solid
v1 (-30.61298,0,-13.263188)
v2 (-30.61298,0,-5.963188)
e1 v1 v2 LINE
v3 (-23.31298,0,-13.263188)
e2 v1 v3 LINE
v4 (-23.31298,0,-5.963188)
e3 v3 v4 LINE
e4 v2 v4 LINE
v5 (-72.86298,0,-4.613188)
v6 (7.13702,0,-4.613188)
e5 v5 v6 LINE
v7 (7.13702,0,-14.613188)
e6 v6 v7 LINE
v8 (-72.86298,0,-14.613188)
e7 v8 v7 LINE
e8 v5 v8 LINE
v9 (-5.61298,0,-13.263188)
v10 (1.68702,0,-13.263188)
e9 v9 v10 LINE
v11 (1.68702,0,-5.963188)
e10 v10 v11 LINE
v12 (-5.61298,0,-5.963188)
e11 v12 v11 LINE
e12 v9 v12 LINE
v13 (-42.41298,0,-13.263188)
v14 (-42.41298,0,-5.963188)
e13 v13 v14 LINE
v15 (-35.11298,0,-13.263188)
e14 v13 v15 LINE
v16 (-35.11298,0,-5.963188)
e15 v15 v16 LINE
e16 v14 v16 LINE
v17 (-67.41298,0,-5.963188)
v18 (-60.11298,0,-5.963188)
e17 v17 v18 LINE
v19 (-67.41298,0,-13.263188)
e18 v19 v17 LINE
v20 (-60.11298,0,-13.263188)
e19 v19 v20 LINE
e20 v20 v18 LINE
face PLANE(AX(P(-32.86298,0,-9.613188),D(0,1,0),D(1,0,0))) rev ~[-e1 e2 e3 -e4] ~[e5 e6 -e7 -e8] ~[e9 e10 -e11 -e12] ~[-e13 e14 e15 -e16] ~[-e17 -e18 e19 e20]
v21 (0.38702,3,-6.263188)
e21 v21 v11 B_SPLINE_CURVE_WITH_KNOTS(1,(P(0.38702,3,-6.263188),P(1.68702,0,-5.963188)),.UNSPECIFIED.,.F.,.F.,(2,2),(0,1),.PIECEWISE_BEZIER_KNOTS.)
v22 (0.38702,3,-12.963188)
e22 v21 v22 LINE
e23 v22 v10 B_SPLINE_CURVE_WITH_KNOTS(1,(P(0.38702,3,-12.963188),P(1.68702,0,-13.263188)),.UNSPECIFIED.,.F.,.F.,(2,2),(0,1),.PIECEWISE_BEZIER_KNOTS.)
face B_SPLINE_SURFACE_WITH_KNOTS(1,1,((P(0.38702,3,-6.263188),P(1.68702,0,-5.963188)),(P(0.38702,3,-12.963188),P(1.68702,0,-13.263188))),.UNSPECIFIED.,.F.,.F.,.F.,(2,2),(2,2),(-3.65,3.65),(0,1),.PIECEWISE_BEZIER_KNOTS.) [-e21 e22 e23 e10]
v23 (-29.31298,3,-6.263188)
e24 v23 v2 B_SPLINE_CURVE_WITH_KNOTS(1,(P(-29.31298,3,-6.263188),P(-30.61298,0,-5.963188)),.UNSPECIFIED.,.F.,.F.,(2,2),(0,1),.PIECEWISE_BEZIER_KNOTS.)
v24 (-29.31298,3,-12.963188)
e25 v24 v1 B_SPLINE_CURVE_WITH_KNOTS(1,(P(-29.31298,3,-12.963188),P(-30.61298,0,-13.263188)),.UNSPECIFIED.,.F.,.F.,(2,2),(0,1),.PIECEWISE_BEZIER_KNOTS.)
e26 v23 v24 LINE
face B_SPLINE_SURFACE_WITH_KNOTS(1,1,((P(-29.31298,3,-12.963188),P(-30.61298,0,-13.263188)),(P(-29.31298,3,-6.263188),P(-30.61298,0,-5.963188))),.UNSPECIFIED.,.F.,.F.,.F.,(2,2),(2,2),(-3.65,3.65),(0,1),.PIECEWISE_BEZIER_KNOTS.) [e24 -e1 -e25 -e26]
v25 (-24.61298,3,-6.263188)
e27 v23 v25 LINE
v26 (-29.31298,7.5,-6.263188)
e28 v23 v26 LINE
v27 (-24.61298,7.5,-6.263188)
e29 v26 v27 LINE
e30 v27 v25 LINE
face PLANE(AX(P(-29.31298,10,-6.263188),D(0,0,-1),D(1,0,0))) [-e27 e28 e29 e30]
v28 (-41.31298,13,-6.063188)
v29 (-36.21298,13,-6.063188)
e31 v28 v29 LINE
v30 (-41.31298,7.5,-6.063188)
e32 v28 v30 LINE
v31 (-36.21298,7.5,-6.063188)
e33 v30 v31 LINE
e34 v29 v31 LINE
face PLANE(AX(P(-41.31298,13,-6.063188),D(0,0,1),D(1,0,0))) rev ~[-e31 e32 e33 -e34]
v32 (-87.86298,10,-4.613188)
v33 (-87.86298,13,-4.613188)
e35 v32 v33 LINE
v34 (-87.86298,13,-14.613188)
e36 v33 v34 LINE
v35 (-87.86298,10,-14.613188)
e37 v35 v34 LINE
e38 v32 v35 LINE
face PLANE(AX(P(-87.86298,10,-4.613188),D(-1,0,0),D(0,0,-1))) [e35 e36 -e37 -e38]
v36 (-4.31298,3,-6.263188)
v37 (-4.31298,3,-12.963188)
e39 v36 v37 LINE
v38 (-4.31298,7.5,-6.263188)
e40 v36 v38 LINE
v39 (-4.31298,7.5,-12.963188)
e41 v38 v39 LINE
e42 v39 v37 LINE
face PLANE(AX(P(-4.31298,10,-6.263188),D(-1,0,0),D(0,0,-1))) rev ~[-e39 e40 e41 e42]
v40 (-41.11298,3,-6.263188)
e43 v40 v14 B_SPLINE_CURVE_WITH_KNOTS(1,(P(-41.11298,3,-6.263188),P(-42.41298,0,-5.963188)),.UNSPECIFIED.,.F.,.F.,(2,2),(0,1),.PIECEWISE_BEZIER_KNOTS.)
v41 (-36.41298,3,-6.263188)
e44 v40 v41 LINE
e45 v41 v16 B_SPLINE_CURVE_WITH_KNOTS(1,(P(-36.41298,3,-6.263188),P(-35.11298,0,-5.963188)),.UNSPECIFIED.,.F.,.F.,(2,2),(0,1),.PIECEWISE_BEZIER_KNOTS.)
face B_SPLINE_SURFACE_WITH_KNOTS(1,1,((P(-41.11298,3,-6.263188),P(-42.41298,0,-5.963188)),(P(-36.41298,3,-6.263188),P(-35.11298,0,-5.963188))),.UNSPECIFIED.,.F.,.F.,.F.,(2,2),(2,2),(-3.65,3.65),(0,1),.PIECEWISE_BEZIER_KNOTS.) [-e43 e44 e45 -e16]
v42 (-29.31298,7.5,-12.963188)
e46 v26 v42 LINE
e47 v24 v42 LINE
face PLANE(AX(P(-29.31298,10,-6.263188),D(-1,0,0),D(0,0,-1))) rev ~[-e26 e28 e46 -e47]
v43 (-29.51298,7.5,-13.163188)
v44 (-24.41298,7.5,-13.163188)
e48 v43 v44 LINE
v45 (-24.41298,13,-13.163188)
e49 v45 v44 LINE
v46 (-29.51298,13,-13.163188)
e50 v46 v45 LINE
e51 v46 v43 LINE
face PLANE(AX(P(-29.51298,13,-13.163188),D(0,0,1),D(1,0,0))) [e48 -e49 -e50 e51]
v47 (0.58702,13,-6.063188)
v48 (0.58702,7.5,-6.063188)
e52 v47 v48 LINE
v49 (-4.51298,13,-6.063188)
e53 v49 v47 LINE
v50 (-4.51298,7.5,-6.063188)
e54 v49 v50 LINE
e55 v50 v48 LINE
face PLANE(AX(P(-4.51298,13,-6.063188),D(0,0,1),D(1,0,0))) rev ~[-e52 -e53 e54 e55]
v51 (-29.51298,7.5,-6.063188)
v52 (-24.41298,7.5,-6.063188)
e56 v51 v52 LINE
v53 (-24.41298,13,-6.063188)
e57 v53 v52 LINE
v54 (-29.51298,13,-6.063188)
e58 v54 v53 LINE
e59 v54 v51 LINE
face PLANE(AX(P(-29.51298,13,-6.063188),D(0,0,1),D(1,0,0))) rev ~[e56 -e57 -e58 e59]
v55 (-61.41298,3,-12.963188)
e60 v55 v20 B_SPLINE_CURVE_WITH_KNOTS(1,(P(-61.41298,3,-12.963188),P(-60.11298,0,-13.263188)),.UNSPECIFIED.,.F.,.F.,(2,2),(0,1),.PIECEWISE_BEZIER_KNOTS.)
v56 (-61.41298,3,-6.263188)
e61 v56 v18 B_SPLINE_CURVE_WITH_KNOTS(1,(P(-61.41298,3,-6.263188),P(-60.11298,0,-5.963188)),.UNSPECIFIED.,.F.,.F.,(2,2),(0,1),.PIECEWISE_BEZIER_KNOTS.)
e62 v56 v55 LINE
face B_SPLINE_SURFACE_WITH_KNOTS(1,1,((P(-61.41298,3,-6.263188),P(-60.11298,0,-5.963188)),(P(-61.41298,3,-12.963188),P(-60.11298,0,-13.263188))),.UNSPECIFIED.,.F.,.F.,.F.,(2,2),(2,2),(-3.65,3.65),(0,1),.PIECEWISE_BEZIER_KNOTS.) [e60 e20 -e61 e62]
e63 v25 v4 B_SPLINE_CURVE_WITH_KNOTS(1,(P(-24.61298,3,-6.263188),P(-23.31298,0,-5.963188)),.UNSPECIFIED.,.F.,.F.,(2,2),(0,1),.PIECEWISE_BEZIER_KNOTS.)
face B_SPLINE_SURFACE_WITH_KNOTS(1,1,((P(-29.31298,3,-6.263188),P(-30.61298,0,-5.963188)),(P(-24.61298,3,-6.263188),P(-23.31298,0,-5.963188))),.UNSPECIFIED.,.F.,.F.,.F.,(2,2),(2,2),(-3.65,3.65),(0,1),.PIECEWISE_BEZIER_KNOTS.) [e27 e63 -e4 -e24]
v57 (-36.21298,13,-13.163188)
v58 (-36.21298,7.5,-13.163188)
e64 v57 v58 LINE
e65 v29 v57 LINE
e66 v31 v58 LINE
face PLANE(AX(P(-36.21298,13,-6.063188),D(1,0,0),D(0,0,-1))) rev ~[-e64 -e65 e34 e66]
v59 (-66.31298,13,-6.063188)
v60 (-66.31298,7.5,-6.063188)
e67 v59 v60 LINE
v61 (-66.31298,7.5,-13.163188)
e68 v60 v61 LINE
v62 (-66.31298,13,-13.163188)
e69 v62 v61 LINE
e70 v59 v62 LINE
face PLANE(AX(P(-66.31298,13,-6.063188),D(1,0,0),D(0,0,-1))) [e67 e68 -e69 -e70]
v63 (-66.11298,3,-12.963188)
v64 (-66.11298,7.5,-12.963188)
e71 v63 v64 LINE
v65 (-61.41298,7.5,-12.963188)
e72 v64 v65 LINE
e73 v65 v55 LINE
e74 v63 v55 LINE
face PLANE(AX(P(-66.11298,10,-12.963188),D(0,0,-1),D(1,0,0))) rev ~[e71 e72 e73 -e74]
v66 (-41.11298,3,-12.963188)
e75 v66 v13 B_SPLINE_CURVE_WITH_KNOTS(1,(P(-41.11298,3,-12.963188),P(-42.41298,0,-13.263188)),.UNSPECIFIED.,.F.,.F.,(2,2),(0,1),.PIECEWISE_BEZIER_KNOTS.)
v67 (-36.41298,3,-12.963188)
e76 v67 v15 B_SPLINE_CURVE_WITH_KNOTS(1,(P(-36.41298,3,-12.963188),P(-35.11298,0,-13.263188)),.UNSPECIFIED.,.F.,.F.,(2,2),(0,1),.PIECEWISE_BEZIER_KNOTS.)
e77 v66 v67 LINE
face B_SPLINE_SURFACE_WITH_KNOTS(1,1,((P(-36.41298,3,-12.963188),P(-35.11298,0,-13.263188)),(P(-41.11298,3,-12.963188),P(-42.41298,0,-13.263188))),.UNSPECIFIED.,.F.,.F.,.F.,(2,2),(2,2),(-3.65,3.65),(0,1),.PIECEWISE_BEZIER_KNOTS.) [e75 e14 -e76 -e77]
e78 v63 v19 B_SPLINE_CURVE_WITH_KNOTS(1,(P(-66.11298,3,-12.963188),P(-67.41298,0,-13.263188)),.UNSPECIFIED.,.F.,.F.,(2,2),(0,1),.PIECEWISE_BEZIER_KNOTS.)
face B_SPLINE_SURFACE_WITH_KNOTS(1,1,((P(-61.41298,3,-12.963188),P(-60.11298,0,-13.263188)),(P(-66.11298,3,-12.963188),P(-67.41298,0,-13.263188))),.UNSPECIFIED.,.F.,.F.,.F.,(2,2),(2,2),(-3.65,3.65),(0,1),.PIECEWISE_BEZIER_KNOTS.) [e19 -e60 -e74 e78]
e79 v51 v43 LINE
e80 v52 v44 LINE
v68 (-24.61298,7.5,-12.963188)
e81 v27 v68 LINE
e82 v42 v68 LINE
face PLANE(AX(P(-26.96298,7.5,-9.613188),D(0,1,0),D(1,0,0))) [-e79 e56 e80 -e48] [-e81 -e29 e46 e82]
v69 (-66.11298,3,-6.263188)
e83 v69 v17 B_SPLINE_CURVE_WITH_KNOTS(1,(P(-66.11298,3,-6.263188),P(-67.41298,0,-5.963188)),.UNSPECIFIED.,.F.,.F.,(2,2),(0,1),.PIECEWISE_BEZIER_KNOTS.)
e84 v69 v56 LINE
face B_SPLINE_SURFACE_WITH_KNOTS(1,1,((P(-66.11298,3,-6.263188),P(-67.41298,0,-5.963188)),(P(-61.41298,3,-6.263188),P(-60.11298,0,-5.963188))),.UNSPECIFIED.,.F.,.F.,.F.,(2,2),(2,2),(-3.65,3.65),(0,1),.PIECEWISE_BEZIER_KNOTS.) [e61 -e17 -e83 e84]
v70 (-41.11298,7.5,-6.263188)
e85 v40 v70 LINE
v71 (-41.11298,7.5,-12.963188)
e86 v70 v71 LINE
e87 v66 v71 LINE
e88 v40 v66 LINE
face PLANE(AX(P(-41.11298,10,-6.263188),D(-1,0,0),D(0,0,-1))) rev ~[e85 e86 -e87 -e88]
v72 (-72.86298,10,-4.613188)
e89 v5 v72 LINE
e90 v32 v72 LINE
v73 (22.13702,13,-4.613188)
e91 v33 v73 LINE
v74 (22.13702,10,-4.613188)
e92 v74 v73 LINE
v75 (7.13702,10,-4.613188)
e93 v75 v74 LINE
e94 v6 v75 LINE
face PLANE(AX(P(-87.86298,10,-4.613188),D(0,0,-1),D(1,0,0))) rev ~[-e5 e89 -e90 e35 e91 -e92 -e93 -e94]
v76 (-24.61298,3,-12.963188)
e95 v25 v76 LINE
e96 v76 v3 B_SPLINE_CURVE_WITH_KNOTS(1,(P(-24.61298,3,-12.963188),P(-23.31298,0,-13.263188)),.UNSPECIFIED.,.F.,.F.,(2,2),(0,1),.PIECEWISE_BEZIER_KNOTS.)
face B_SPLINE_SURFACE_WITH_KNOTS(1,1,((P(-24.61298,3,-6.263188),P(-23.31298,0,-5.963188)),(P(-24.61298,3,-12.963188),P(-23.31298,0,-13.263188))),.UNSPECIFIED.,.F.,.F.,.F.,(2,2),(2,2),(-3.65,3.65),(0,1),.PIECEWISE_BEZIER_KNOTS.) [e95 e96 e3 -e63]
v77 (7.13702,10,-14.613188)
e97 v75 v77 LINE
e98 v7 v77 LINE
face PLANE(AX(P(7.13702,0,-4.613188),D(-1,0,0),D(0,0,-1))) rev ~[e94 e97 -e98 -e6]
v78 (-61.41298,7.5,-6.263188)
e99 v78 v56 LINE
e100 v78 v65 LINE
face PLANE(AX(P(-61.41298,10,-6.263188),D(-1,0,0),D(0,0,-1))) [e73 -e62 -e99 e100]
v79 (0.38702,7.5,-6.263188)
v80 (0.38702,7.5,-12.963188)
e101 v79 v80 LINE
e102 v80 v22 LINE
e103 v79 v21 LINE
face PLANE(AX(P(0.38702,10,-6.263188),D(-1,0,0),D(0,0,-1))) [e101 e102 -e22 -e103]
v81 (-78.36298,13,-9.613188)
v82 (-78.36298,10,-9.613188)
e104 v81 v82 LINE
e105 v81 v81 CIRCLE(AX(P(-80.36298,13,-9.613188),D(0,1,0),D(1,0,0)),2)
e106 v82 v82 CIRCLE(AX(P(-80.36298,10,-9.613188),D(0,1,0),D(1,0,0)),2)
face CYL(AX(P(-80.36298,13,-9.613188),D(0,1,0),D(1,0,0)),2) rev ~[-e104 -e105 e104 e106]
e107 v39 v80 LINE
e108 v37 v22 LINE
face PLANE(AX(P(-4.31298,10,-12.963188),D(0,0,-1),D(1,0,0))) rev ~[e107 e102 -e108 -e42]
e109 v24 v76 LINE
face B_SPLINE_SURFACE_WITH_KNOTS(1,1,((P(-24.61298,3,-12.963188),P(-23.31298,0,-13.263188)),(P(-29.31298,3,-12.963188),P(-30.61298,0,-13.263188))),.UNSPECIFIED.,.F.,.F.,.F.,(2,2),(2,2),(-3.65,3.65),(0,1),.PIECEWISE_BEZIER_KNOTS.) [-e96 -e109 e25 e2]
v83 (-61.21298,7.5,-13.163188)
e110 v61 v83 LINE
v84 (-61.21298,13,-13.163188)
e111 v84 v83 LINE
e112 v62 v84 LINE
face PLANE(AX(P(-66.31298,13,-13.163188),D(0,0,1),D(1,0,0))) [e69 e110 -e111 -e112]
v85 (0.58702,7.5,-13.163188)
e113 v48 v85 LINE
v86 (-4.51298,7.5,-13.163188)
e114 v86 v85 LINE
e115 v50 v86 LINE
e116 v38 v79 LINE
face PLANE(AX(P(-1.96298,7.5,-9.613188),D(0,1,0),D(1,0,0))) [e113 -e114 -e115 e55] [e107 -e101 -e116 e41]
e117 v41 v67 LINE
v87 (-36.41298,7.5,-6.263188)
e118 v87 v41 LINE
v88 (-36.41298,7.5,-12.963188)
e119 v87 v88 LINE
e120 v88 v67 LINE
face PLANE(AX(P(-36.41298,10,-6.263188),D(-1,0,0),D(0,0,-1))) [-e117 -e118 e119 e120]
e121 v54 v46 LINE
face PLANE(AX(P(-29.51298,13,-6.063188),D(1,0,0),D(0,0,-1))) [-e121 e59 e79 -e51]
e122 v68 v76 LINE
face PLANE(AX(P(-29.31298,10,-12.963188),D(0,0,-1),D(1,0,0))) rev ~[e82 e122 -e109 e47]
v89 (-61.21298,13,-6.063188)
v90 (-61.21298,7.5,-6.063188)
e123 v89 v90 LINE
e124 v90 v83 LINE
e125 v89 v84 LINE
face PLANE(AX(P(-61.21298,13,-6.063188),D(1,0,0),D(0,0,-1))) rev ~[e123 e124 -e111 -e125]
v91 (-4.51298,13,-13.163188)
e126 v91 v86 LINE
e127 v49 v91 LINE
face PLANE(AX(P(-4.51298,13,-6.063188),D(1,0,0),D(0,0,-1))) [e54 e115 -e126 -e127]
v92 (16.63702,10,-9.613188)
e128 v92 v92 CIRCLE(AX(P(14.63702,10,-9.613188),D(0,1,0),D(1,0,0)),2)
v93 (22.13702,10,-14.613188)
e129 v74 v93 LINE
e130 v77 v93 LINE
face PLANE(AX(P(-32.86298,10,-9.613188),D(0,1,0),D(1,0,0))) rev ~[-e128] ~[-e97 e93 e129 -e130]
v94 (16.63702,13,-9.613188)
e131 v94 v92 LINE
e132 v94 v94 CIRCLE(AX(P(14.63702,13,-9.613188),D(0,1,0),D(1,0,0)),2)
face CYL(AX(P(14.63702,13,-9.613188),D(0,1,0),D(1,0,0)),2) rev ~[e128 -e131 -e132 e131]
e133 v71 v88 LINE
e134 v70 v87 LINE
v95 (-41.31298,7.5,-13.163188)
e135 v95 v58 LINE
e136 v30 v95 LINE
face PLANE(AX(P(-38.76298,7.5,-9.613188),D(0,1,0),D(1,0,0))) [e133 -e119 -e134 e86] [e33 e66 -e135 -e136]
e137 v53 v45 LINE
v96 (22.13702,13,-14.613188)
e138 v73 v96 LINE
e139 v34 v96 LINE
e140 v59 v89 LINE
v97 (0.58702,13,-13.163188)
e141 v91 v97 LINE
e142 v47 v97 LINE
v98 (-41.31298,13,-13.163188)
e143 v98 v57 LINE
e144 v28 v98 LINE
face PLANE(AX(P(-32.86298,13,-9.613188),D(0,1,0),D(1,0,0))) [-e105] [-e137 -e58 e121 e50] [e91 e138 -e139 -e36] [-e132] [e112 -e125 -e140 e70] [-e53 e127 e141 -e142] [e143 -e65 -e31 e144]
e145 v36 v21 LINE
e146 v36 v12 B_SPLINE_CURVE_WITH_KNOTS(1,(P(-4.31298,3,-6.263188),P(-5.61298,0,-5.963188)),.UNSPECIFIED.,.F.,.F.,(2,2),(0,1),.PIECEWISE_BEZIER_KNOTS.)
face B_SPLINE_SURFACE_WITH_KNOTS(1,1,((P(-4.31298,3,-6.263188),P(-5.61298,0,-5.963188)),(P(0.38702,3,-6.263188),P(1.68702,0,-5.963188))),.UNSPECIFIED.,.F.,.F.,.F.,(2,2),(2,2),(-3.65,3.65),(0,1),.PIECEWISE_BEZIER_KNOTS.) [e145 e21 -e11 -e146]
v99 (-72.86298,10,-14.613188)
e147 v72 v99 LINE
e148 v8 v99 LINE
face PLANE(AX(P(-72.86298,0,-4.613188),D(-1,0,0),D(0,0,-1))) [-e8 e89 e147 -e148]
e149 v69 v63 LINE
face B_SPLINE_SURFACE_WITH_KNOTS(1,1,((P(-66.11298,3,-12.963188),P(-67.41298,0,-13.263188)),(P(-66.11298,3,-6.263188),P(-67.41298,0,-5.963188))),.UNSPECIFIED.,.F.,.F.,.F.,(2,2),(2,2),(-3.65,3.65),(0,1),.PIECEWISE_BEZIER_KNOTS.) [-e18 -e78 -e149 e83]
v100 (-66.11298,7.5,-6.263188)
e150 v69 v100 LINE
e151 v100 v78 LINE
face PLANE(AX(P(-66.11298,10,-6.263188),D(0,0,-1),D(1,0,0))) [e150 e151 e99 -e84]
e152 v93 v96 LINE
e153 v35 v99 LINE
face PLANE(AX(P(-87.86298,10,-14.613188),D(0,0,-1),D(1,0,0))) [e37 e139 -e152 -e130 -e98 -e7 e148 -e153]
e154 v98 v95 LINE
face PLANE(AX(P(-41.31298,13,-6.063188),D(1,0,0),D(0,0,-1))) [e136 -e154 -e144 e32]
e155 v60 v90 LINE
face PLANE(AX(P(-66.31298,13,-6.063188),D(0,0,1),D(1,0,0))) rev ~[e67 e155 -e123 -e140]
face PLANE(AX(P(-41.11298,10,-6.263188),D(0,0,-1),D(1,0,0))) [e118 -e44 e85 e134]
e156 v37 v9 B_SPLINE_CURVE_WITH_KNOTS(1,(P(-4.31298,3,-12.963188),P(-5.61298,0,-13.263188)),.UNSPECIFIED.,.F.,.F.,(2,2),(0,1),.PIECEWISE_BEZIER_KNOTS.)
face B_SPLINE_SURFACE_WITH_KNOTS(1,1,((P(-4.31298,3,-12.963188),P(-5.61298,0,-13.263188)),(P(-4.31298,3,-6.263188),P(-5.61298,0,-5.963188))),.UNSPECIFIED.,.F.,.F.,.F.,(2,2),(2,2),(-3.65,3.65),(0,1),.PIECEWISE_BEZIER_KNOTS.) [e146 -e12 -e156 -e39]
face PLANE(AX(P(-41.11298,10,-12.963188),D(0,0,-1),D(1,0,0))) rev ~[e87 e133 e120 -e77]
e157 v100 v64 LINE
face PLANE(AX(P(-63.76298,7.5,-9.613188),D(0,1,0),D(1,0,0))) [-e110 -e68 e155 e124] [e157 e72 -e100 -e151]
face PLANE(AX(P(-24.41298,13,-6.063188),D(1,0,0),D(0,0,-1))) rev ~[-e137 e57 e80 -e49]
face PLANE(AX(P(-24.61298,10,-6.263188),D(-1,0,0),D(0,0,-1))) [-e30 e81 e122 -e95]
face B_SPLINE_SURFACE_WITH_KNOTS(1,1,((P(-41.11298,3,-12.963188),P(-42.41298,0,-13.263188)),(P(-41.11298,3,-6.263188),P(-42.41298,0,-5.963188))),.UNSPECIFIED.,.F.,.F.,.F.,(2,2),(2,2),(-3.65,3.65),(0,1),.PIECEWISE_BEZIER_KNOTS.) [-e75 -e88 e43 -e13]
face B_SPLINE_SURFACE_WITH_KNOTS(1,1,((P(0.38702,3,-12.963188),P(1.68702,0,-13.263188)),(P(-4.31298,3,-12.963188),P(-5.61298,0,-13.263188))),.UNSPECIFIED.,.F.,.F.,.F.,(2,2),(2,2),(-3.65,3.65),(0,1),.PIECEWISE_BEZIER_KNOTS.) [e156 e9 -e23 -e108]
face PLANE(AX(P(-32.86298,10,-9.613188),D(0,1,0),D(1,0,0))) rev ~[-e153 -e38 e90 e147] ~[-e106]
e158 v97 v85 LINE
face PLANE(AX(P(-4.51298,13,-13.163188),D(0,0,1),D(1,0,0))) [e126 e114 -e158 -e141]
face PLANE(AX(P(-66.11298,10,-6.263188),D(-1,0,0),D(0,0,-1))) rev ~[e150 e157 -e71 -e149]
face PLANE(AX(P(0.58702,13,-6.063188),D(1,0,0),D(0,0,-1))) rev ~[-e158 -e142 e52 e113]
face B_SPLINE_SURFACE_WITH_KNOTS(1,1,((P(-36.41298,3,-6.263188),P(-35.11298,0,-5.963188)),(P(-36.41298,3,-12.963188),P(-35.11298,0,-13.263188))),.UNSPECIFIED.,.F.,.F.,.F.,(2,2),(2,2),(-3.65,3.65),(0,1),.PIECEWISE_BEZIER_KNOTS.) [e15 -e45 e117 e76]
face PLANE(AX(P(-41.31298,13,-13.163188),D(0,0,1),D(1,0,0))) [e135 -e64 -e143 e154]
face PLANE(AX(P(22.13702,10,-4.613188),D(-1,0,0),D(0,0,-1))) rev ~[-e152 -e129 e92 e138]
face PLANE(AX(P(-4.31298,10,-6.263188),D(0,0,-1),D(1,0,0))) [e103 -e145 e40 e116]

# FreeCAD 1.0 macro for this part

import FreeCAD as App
import Part
import Sketcher

V = App.Vector
Q = App.Units.Quantity

doc = App.newDocument("Part")
body = doc.addObject("PartDesign::Body", "Body")

# Sketch on XZ plane
sketch1 = doc.addObject("Sketcher::SketchObject", "Sketch")
body.addObject(sketch1)
sketch1.AttachmentSupport = (doc.XZ_Plane, [""])
sketch1.MapMode = "FlatFace"
sketch1.addGeometry(Part.LineSegment(V(-73, -15, 0), V(-73, -5, 0)), False)
sketch1.addGeometry(Part.LineSegment(V(-73, -5, 0), V(7, -5, 0)), False)
sketch1.addGeometry(Part.LineSegment(V(7, -5, 0), V(7, -15, 0)), False)
sketch1.addGeometry(Part.LineSegment(V(7, -15, 0), V(-73, -15, 0)), False)
sketch1.addConstraint(Sketcher.Constraint("Coincident", 0, 2, 1, 1))
sketch1.addConstraint(Sketcher.Constraint("Coincident", 1, 2, 2, 1))
sketch1.addConstraint(Sketcher.Constraint("Coincident", 2, 2, 3, 1))
sketch1.addConstraint(Sketcher.Constraint("Coincident", 3, 2, 0, 1))
sketch1.addConstraint(Sketcher.Constraint("Vertical", 0))
sketch1.addConstraint(Sketcher.Constraint("Horizontal", 1))
sketch1.addConstraint(Sketcher.Constraint("Vertical", 2))
sketch1.addConstraint(Sketcher.Constraint("Horizontal", 3))
sketch1.addConstraint(Sketcher.Constraint("DistanceX", 1, 1, 1, 2, Q("80 mm")))
sketch1.addConstraint(Sketcher.Constraint("DistanceY", 0, 1, 0, 2, Q("10 mm")))
sketch1.addConstraint(Sketcher.Constraint("DistanceX", 0, 2, -1, 1, Q("72.86298 mm")))
sketch1.addConstraint(Sketcher.Constraint("DistanceY", 0, 2, -1, 1, Q("4.613188 mm")))
pad1 = doc.addObject("PartDesign::Pad", "Pad")
body.addObject(pad1)
pad1.Profile = sketch1
pad1.Length = 10
pad1.Reversed = True

# Sketch on XZ plane
sketch2 = doc.addObject("Sketcher::SketchObject", "Sketch001")
body.addObject(sketch2)
sketch2.AttachmentSupport = (doc.XZ_Plane, [""])
sketch2.MapMode = "FlatFace"
sketch2.AttachmentOffset = App.Placement(V(0, 0, -10), App.Rotation())
sketch2.addGeometry(Part.LineSegment(V(-29.3, -13, 0), V(-29.3, -6.3, 0)), False)
sketch2.addGeometry(Part.LineSegment(V(-29.3, -6.3, 0), V(-24.6, -6.3, 0)), False)
sketch2.addGeometry(Part.LineSegment(V(-24.6, -6.3, 0), V(-24.6, -13, 0)), False)
sketch2.addGeometry(Part.LineSegment(V(-24.6, -13, 0), V(-29.3, -13, 0)), False)
sketch2.addGeometry(Part.LineSegment(V(-41.1, -13, 0), V(-41.1, -6.3, 0)), False)
sketch2.addGeometry(Part.LineSegment(V(-41.1, -6.3, 0), V(-36.4, -6.3, 0)), False)
sketch2.addGeometry(Part.LineSegment(V(-36.4, -6.3, 0), V(-36.4, -13, 0)), False)
sketch2.addGeometry(Part.LineSegment(V(-36.4, -13, 0), V(-41.1, -13, 0)), False)
sketch2.addGeometry(Part.LineSegment(V(-4.3, -13, 0), V(-4.3, -6.3, 0)), False)
sketch2.addGeometry(Part.LineSegment(V(-4.3, -6.3, 0), V(0.4, -6.3, 0)), False)
sketch2.addGeometry(Part.LineSegment(V(0.4, -6.3, 0), V(0.4, -13, 0)), False)
sketch2.addGeometry(Part.LineSegment(V(0.4, -13, 0), V(-4.3, -13, 0)), False)
sketch2.addGeometry(Part.LineSegment(V(-66.1, -13, 0), V(-66.1, -6.3, 0)), False)
sketch2.addGeometry(Part.LineSegment(V(-66.1, -6.3, 0), V(-61.4, -6.3, 0)), False)
sketch2.addGeometry(Part.LineSegment(V(-61.4, -6.3, 0), V(-61.4, -13, 0)), False)
sketch2.addGeometry(Part.LineSegment(V(-61.4, -13, 0), V(-66.1, -13, 0)), False)
sketch2.addConstraint(Sketcher.Constraint("Coincident", 0, 2, 1, 1))
sketch2.addConstraint(Sketcher.Constraint("Coincident", 1, 2, 2, 1))
sketch2.addConstraint(Sketcher.Constraint("Coincident", 2, 2, 3, 1))
sketch2.addConstraint(Sketcher.Constraint("Coincident", 3, 2, 0, 1))
sketch2.addConstraint(Sketcher.Constraint("Coincident", 4, 2, 5, 1))
sketch2.addConstraint(Sketcher.Constraint("Coincident", 5, 2, 6, 1))
sketch2.addConstraint(Sketcher.Constraint("Coincident", 6, 2, 7, 1))
sketch2.addConstraint(Sketcher.Constraint("Coincident", 7, 2, 4, 1))
sketch2.addConstraint(Sketcher.Constraint("Coincident", 8, 2, 9, 1))
sketch2.addConstraint(Sketcher.Constraint("Coincident", 9, 2, 10, 1))
sketch2.addConstraint(Sketcher.Constraint("Coincident", 10, 2, 11, 1))
sketch2.addConstraint(Sketcher.Constraint("Coincident", 11, 2, 8, 1))
sketch2.addConstraint(Sketcher.Constraint("Coincident", 12, 2, 13, 1))
sketch2.addConstraint(Sketcher.Constraint("Coincident", 13, 2, 14, 1))
sketch2.addConstraint(Sketcher.Constraint("Coincident", 14, 2, 15, 1))
sketch2.addConstraint(Sketcher.Constraint("Coincident", 15, 2, 12, 1))
sketch2.addConstraint(Sketcher.Constraint("Vertical", 0))
sketch2.addConstraint(Sketcher.Constraint("Horizontal", 1))
sketch2.addConstraint(Sketcher.Constraint("Vertical", 2))
sketch2.addConstraint(Sketcher.Constraint("Horizontal", 3))
sketch2.addConstraint(Sketcher.Constraint("Vertical", 4))
sketch2.addConstraint(Sketcher.Constraint("Horizontal", 5))
sketch2.addConstraint(Sketcher.Constraint("Vertical", 6))
sketch2.addConstraint(Sketcher.Constraint("Horizontal", 7))
sketch2.addConstraint(Sketcher.Constraint("Vertical", 8))
sketch2.addConstraint(Sketcher.Constraint("Horizontal", 9))
sketch2.addConstraint(Sketcher.Constraint("Vertical", 10))
sketch2.addConstraint(Sketcher.Constraint("Horizontal", 11))
sketch2.addConstraint(Sketcher.Constraint("Vertical", 12))
sketch2.addConstraint(Sketcher.Constraint("Horizontal", 13))
sketch2.addConstraint(Sketcher.Constraint("Vertical", 14))
sketch2.addConstraint(Sketcher.Constraint("Horizontal", 15))
sketch2.addConstraint(Sketcher.Constraint("Horizontal", 1, 2, 4, 2))
sketch2.addConstraint(Sketcher.Constraint("Horizontal", 3, 2, 6, 2))
sketch2.addConstraint(Sketcher.Constraint("Horizontal", 5, 2, 8, 2))
sketch2.addConstraint(Sketcher.Constraint("Horizontal", 7, 2, 10, 2))
sketch2.addConstraint(Sketcher.Constraint("Horizontal", 9, 2, 12, 2))
sketch2.addConstraint(Sketcher.Constraint("Horizontal", 11, 2, 14, 2))
sketch2.addConstraint(Sketcher.Constraint("Equal", 3, 5))
sketch2.addConstraint(Sketcher.Constraint("Equal", 7, 9))
sketch2.addConstraint(Sketcher.Constraint("Equal", 11, 13))
sketch2.addConstraint(Sketcher.Constraint("DistanceX", 1, 1, 1, 2, Q("4.7 mm")))
sketch2.addConstraint(Sketcher.Constraint("DistanceY", 0, 1, 0, 2, Q("6.7 mm")))
sketch2.addConstraint(Sketcher.Constraint("DistanceX", 0, 2, 8, 2, Q("25 mm")))
sketch2.addConstraint(Sketcher.Constraint("DistanceX", 12, 2, 4, 2, Q("25 mm")))
sketch2.addConstraint(Sketcher.Constraint("DistanceX", 4, 2, 0, 2, Q("11.8 mm")))
sketch2.addConstraint(Sketcher.Constraint("DistanceX", 0, 2, -1, 1, Q("29.31298 mm")))
sketch2.addConstraint(Sketcher.Constraint("DistanceY", 0, 2, -1, 1, Q("6.263188 mm")))
pocket1 = doc.addObject("PartDesign::Pocket", "Pocket")
body.addObject(pocket1)
pocket1.Profile = sketch2
pocket1.Length = 7
pocket1.Reversed = True

# Sketch on XZ plane
sketch3 = doc.addObject("Sketcher::SketchObject", "Sketch002")
body.addObject(sketch3)
sketch3.AttachmentSupport = (doc.XZ_Plane, [""])
sketch3.MapMode = "FlatFace"
sketch3.AttachmentOffset = App.Placement(V(0, 0, -3), App.Rotation())
sketch3.addGeometry(Part.LineSegment(V(-41.1, -13, 0), V(-41.1, -6.3, 0)), False)
sketch3.addGeometry(Part.LineSegment(V(-41.1, -6.3, 0), V(-36.4, -6.3, 0)), False)
sketch3.addGeometry(Part.LineSegment(V(-36.4, -6.3, 0), V(-36.4, -13, 0)), False)
sketch3.addGeometry(Part.LineSegment(V(-36.4, -13, 0), V(-41.1, -13, 0)), False)
sketch3.addConstraint(Sketcher.Constraint("Coincident", 0, 2, 1, 1))
sketch3.addConstraint(Sketcher.Constraint("Coincident", 1, 2, 2, 1))
sketch3.addConstraint(Sketcher.Constraint("Coincident", 2, 2, 3, 1))
sketch3.addConstraint(Sketcher.Constraint("Coincident", 3, 2, 0, 1))
sketch3.addConstraint(Sketcher.Constraint("Vertical", 0))
sketch3.addConstraint(Sketcher.Constraint("Horizontal", 1))
sketch3.addConstraint(Sketcher.Constraint("Vertical", 2))
sketch3.addConstraint(Sketcher.Constraint("Horizontal", 3))
sketch3.addConstraint(Sketcher.Constraint("DistanceX", 1, 1, 1, 2, Q("4.7 mm")))
sketch3.addConstraint(Sketcher.Constraint("DistanceY", 0, 1, 0, 2, Q("6.7 mm")))
sketch3.addConstraint(Sketcher.Constraint("DistanceX", 0, 2, -1, 1, Q("41.11298 mm")))
sketch3.addConstraint(Sketcher.Constraint("DistanceY", 0, 2, -1, 1, Q("6.263188 mm")))

# Sketch on XZ plane
sketch4 = doc.addObject("Sketcher::SketchObject", "Sketch003")
body.addObject(sketch4)
sketch4.AttachmentSupport = (doc.XZ_Plane, [""])
sketch4.MapMode = "FlatFace"
sketch4.addGeometry(Part.LineSegment(V(-42, -6, 0), V(-42, -13, 0)), False)
sketch4.addGeometry(Part.LineSegment(V(-42, -13, 0), V(-35, -13, 0)), False)
sketch4.addGeometry(Part.LineSegment(V(-35, -13, 0), V(-35, -6, 0)), False)
sketch4.addGeometry(Part.LineSegment(V(-35, -6, 0), V(-42, -6, 0)), False)
sketch4.addConstraint(Sketcher.Constraint("Coincident", 0, 2, 1, 1))
sketch4.addConstraint(Sketcher.Constraint("Coincident", 1, 2, 2, 1))
sketch4.addConstraint(Sketcher.Constraint("Coincident", 2, 2, 3, 1))
sketch4.addConstraint(Sketcher.Constraint("Coincident", 3, 2, 0, 1))
sketch4.addConstraint(Sketcher.Constraint("Vertical", 0))
sketch4.addConstraint(Sketcher.Constraint("Horizontal", 1))
sketch4.addConstraint(Sketcher.Constraint("Vertical", 2))
sketch4.addConstraint(Sketcher.Constraint("Horizontal", 3))
sketch4.addConstraint(Sketcher.Constraint("Equal", 3, 0))
sketch4.addConstraint(Sketcher.Constraint("DistanceX", 1, 1, 1, 2, Q("7.3 mm")))
sketch4.addConstraint(Sketcher.Constraint("DistanceX", 0, 2, -1, 1, Q("42.41298 mm")))
sketch4.addConstraint(Sketcher.Constraint("DistanceY", 0, 2, -1, 1, Q("13.263188 mm")))

subtractiveloft = doc.addObject("PartDesign::SubtractiveLoft", "SubtractiveLoft")
body.addObject(subtractiveloft)
subtractiveloft.Profile = sketch3
subtractiveloft.Sections = [sketch4]

# Sketch on XZ plane
sketch5 = doc.addObject("Sketcher::SketchObject", "Sketch004")
body.addObject(sketch5)
sketch5.AttachmentSupport = (doc.XZ_Plane, [""])
sketch5.MapMode = "FlatFace"
sketch5.AttachmentOffset = App.Placement(V(0, 0, -3), App.Rotation())
sketch5.addGeometry(Part.LineSegment(V(-66.1, -13, 0), V(-66.1, -6.3, 0)), False)
sketch5.addGeometry(Part.LineSegment(V(-66.1, -6.3, 0), V(-61.4, -6.3, 0)), False)
sketch5.addGeometry(Part.LineSegment(V(-61.4, -6.3, 0), V(-61.4, -13, 0)), False)
sketch5.addGeometry(Part.LineSegment(V(-61.4, -13, 0), V(-66.1, -13, 0)), False)
sketch5.addConstraint(Sketcher.Constraint("Coincident", 0, 2, 1, 1))
sketch5.addConstraint(Sketcher.Constraint("Coincident", 1, 2, 2, 1))
sketch5.addConstraint(Sketcher.Constraint("Coincident", 2, 2, 3, 1))
sketch5.addConstraint(Sketcher.Constraint("Coincident", 3, 2, 0, 1))
sketch5.addConstraint(Sketcher.Constraint("Vertical", 0))
sketch5.addConstraint(Sketcher.Constraint("Horizontal", 1))
sketch5.addConstraint(Sketcher.Constraint("Vertical", 2))
sketch5.addConstraint(Sketcher.Constraint("Horizontal", 3))
sketch5.addConstraint(Sketcher.Constraint("DistanceX", 1, 1, 1, 2, Q("4.7 mm")))
sketch5.addConstraint(Sketcher.Constraint("DistanceY", 0, 1, 0, 2, Q("6.7 mm")))
sketch5.addConstraint(Sketcher.Constraint("DistanceX", 0, 2, -1, 1, Q("66.11298 mm")))
sketch5.addConstraint(Sketcher.Constraint("DistanceY", 0, 2, -1, 1, Q("6.263188 mm")))

# Sketch on XZ plane
sketch6 = doc.addObject("Sketcher::SketchObject", "Sketch005")
body.addObject(sketch6)
sketch6.AttachmentSupport = (doc.XZ_Plane, [""])
sketch6.MapMode = "FlatFace"
sketch6.addGeometry(Part.LineSegment(V(-67, -6, 0), V(-67, -13, 0)), False)
sketch6.addGeometry(Part.LineSegment(V(-67, -13, 0), V(-60, -13, 0)), False)
sketch6.addGeometry(Part.LineSegment(V(-60, -13, 0), V(-60, -6, 0)), False)
sketch6.addGeometry(Part.LineSegment(V(-60, -6, 0), V(-67, -6, 0)), False)
sketch6.addConstraint(Sketcher.Constraint("Coincident", 0, 2, 1, 1))
sketch6.addConstraint(Sketcher.Constraint("Coincident", 1, 2, 2, 1))
sketch6.addConstraint(Sketcher.Constraint("Coincident", 2, 2, 3, 1))
sketch6.addConstraint(Sketcher.Constraint("Coincident", 3, 2, 0, 1))
sketch6.addConstraint(Sketcher.Constraint("Vertical", 0))
sketch6.addConstraint(Sketcher.Constraint("Horizontal", 1))
sketch6.addConstraint(Sketcher.Constraint("Vertical", 2))
sketch6.addConstraint(Sketcher.Constraint("Horizontal", 3))
sketch6.addConstraint(Sketcher.Constraint("Equal", 3, 0))
sketch6.addConstraint(Sketcher.Constraint("DistanceX", 1, 1, 1, 2, Q("7.3 mm")))
sketch6.addConstraint(Sketcher.Constraint("DistanceX", 0, 2, -1, 1, Q("67.41298 mm")))
sketch6.addConstraint(Sketcher.Constraint("DistanceY", 0, 2, -1, 1, Q("13.263188 mm")))

subtractiveloft2 = doc.addObject("PartDesign::SubtractiveLoft", "SubtractiveLoft001")
body.addObject(subtractiveloft2)
subtractiveloft2.Profile = sketch5
subtractiveloft2.Sections = [sketch6]

# Sketch on XZ plane
sketch7 = doc.addObject("Sketcher::SketchObject", "Sketch006")
body.addObject(sketch7)
sketch7.AttachmentSupport = (doc.XZ_Plane, [""])
sketch7.MapMode = "FlatFace"
sketch7.AttachmentOffset = App.Placement(V(0, 0, -3), App.Rotation())
sketch7.addGeometry(Part.LineSegment(V(-29.3, -13, 0), V(-29.3, -6.3, 0)), False)
sketch7.addGeometry(Part.LineSegment(V(-29.3, -6.3, 0), V(-24.6, -6.3, 0)), False)
sketch7.addGeometry(Part.LineSegment(V(-24.6, -6.3, 0), V(-24.6, -13, 0)), False)
sketch7.addGeometry(Part.LineSegment(V(-24.6, -13, 0), V(-29.3, -13, 0)), False)
sketch7.addConstraint(Sketcher.Constraint("Coincident", 0, 2, 1, 1))
sketch7.addConstraint(Sketcher.Constraint("Coincident", 1, 2, 2, 1))
sketch7.addConstraint(Sketcher.Constraint("Coincident", 2, 2, 3, 1))
sketch7.addConstraint(Sketcher.Constraint("Coincident", 3, 2, 0, 1))
sketch7.addConstraint(Sketcher.Constraint("Vertical", 0))
sketch7.addConstraint(Sketcher.Constraint("Horizontal", 1))
sketch7.addConstraint(Sketcher.Constraint("Vertical", 2))
sketch7.addConstraint(Sketcher.Constraint("Horizontal", 3))
sketch7.addConstraint(Sketcher.Constraint("DistanceX", 1, 1, 1, 2, Q("4.7 mm")))
sketch7.addConstraint(Sketcher.Constraint("DistanceY", 0, 1, 0, 2, Q("6.7 mm")))
sketch7.addConstraint(Sketcher.Constraint("DistanceX", 0, 2, -1, 1, Q("29.31298 mm")))
sketch7.addConstraint(Sketcher.Constraint("DistanceY", 0, 2, -1, 1, Q("6.263188 mm")))

# Sketch on XZ plane
sketch8 = doc.addObject("Sketcher::SketchObject", "Sketch007")
body.addObject(sketch8)
sketch8.AttachmentSupport = (doc.XZ_Plane, [""])
sketch8.MapMode = "FlatFace"
sketch8.addGeometry(Part.LineSegment(V(-31, -6, 0), V(-31, -13, 0)), False)
sketch8.addGeometry(Part.LineSegment(V(-31, -13, 0), V(-23, -13, 0)), False)
sketch8.addGeometry(Part.LineSegment(V(-23, -13, 0), V(-23, -6, 0)), False)
sketch8.addGeometry(Part.LineSegment(V(-23, -6, 0), V(-31, -6, 0)), False)
sketch8.addConstraint(Sketcher.Constraint("Coincident", 0, 2, 1, 1))
sketch8.addConstraint(Sketcher.Constraint("Coincident", 1, 2, 2, 1))
sketch8.addConstraint(Sketcher.Constraint("Coincident", 2, 2, 3, 1))
sketch8.addConstraint(Sketcher.Constraint("Coincident", 3, 2, 0, 1))
sketch8.addConstraint(Sketcher.Constraint("Vertical", 0))
sketch8.addConstraint(Sketcher.Constraint("Horizontal", 1))
sketch8.addConstraint(Sketcher.Constraint("Vertical", 2))
sketch8.addConstraint(Sketcher.Constraint("Horizontal", 3))
sketch8.addConstraint(Sketcher.Constraint("Equal", 3, 0))
sketch8.addConstraint(Sketcher.Constraint("DistanceX", 1, 1, 1, 2, Q("7.3 mm")))
sketch8.addConstraint(Sketcher.Constraint("DistanceX", 0, 2, -1, 1, Q("30.61298 mm")))
sketch8.addConstraint(Sketcher.Constraint("DistanceY", 0, 2, -1, 1, Q("13.263188 mm")))

subtractiveloft3 = doc.addObject("PartDesign::SubtractiveLoft", "SubtractiveLoft002")
body.addObject(subtractiveloft3)
subtractiveloft3.Profile = sketch7
subtractiveloft3.Sections = [sketch8]

# Sketch on XZ plane
sketch9 = doc.addObject("Sketcher::SketchObject", "Sketch008")
body.addObject(sketch9)
sketch9.AttachmentSupport = (doc.XZ_Plane, [""])
sketch9.MapMode = "FlatFace"
sketch9.AttachmentOffset = App.Placement(V(0, 0, -3), App.Rotation())
sketch9.addGeometry(Part.LineSegment(V(-4.3, -13, 0), V(-4.3, -6.3, 0)), False)
sketch9.addGeometry(Part.LineSegment(V(-4.3, -6.3, 0), V(0.4, -6.3, 0)), False)
sketch9.addGeometry(Part.LineSegment(V(0.4, -6.3, 0), V(0.4, -13, 0)), False)
sketch9.addGeometry(Part.LineSegment(V(0.4, -13, 0), V(-4.3, -13, 0)), False)
sketch9.addConstraint(Sketcher.Constraint("Coincident", 0, 2, 1, 1))
sketch9.addConstraint(Sketcher.Constraint("Coincident", 1, 2, 2, 1))
sketch9.addConstraint(Sketcher.Constraint("Coincident", 2, 2, 3, 1))
sketch9.addConstraint(Sketcher.Constraint("Coincident", 3, 2, 0, 1))
sketch9.addConstraint(Sketcher.Constraint("Vertical", 0))
sketch9.addConstraint(Sketcher.Constraint("Horizontal", 1))
sketch9.addConstraint(Sketcher.Constraint("Vertical", 2))
sketch9.addConstraint(Sketcher.Constraint("Horizontal", 3))
sketch9.addConstraint(Sketcher.Constraint("DistanceX", 1, 1, 1, 2, Q("4.7 mm")))
sketch9.addConstraint(Sketcher.Constraint("DistanceY", 0, 1, 0, 2, Q("6.7 mm")))
sketch9.addConstraint(Sketcher.Constraint("DistanceX", 0, 2, -1, 1, Q("4.31298 mm")))
sketch9.addConstraint(Sketcher.Constraint("DistanceY", 0, 2, -1, 1, Q("6.263188 mm")))

# Sketch on XZ plane
sketch10 = doc.addObject("Sketcher::SketchObject", "Sketch009")
body.addObject(sketch10)
sketch10.AttachmentSupport = (doc.XZ_Plane, [""])
sketch10.MapMode = "FlatFace"
sketch10.addGeometry(Part.LineSegment(V(-6, -6, 0), V(-6, -13, 0)), False)
sketch10.addGeometry(Part.LineSegment(V(-6, -13, 0), V(2, -13, 0)), False)
sketch10.addGeometry(Part.LineSegment(V(2, -13, 0), V(2, -6, 0)), False)
sketch10.addGeometry(Part.LineSegment(V(2, -6, 0), V(-6, -6, 0)), False)
sketch10.addConstraint(Sketcher.Constraint("Coincident", 0, 2, 1, 1))
sketch10.addConstraint(Sketcher.Constraint("Coincident", 1, 2, 2, 1))
sketch10.addConstraint(Sketcher.Constraint("Coincident", 2, 2, 3, 1))
sketch10.addConstraint(Sketcher.Constraint("Coincident", 3, 2, 0, 1))
sketch10.addConstraint(Sketcher.Constraint("Vertical", 0))
sketch10.addConstraint(Sketcher.Constraint("Horizontal", 1))
sketch10.addConstraint(Sketcher.Constraint("Vertical", 2))
sketch10.addConstraint(Sketcher.Constraint("Horizontal", 3))
sketch10.addConstraint(Sketcher.Constraint("Equal", 3, 0))
sketch10.addConstraint(Sketcher.Constraint("DistanceX", 1, 1, 1, 2, Q("7.3 mm")))
sketch10.addConstraint(Sketcher.Constraint("DistanceX", 0, 2, -1, 1, Q("5.61298 mm")))
sketch10.addConstraint(Sketcher.Constraint("DistanceY", 0, 2, -1, 1, Q("13.263188 mm")))

subtractiveloft4 = doc.addObject("PartDesign::SubtractiveLoft", "SubtractiveLoft003")
body.addObject(subtractiveloft4)
subtractiveloft4.Profile = sketch9
subtractiveloft4.Sections = [sketch10]

# Sketch on XZ plane
sketch11 = doc.addObject("Sketcher::SketchObject", "Sketch010")
body.addObject(sketch11)
sketch11.AttachmentSupport = (doc.XZ_Plane, [""])
sketch11.MapMode = "FlatFace"
sketch11.AttachmentOffset = App.Placement(V(0, 0, -10), App.Rotation())
sketch11.addGeometry(Part.LineSegment(V(-87.9, -14.6, 0), V(-87.9, -4.6, 0)), False)
sketch11.addGeometry(Part.LineSegment(V(-87.9, -4.6, 0), V(22.1, -4.6, 0)), False)
sketch11.addGeometry(Part.LineSegment(V(22.1, -4.6, 0), V(22.1, -14.6, 0)), False)
sketch11.addGeometry(Part.LineSegment(V(22.1, -14.6, 0), V(-87.9, -14.6, 0)), False)
sketch11.addGeometry(Part.LineSegment(V(-61.4, -6.3, 0), V(-66.1, -6.3, 0)), False)
sketch11.addGeometry(Part.LineSegment(V(-66.1, -6.3, 0), V(-66.1, -13, 0)), False)
sketch11.addGeometry(Part.LineSegment(V(-66.1, -13, 0), V(-61.4, -13, 0)), False)
sketch11.addGeometry(Part.LineSegment(V(-61.4, -13, 0), V(-61.4, -6.3, 0)), False)
sketch11.addGeometry(Part.LineSegment(V(-36.4, -6.3, 0), V(-41.1, -6.3, 0)), False)
sketch11.addGeometry(Part.LineSegment(V(-41.1, -6.3, 0), V(-41.1, -13, 0)), False)
sketch11.addGeometry(Part.LineSegment(V(-41.1, -13, 0), V(-36.4, -13, 0)), False)
sketch11.addGeometry(Part.LineSegment(V(-36.4, -13, 0), V(-36.4, -6.3, 0)), False)
sketch11.addGeometry(Part.LineSegment(V(-24.6, -6.3, 0), V(-29.3, -6.3, 0)), False)
sketch11.addGeometry(Part.LineSegment(V(-29.3, -6.3, 0), V(-29.3, -13, 0)), False)
sketch11.addGeometry(Part.LineSegment(V(-29.3, -13, 0), V(-24.6, -13, 0)), False)
sketch11.addGeometry(Part.LineSegment(V(-24.6, -13, 0), V(-24.6, -6.3, 0)), False)
sketch11.addGeometry(Part.LineSegment(V(0.4, -6.3, 0), V(-4.3, -6.3, 0)), False)
sketch11.addGeometry(Part.LineSegment(V(-4.3, -6.3, 0), V(-4.3, -13, 0)), False)
sketch11.addGeometry(Part.LineSegment(V(-4.3, -13, 0), V(0.4, -13, 0)), False)
sketch11.addGeometry(Part.LineSegment(V(0.4, -13, 0), V(0.4, -6.3, 0)), False)
sketch11.addConstraint(Sketcher.Constraint("Coincident", 0, 2, 1, 1))
sketch11.addConstraint(Sketcher.Constraint("Coincident", 1, 2, 2, 1))
sketch11.addConstraint(Sketcher.Constraint("Coincident", 2, 2, 3, 1))
sketch11.addConstraint(Sketcher.Constraint("Coincident", 3, 2, 0, 1))
sketch11.addConstraint(Sketcher.Constraint("Coincident", 4, 2, 5, 1))
sketch11.addConstraint(Sketcher.Constraint("Coincident", 5, 2, 6, 1))
sketch11.addConstraint(Sketcher.Constraint("Coincident", 6, 2, 7, 1))
sketch11.addConstraint(Sketcher.Constraint("Coincident", 7, 2, 4, 1))
sketch11.addConstraint(Sketcher.Constraint("Coincident", 8, 2, 9, 1))
sketch11.addConstraint(Sketcher.Constraint("Coincident", 9, 2, 10, 1))
sketch11.addConstraint(Sketcher.Constraint("Coincident", 10, 2, 11, 1))
sketch11.addConstraint(Sketcher.Constraint("Coincident", 11, 2, 8, 1))
sketch11.addConstraint(Sketcher.Constraint("Coincident", 12, 2, 13, 1))
sketch11.addConstraint(Sketcher.Constraint("Coincident", 13, 2, 14, 1))
sketch11.addConstraint(Sketcher.Constraint("Coincident", 14, 2, 15, 1))
sketch11.addConstraint(Sketcher.Constraint("Coincident", 15, 2, 12, 1))
sketch11.addConstraint(Sketcher.Constraint("Coincident", 16, 2, 17, 1))
sketch11.addConstraint(Sketcher.Constraint("Coincident", 17, 2, 18, 1))
sketch11.addConstraint(Sketcher.Constraint("Coincident", 18, 2, 19, 1))
sketch11.addConstraint(Sketcher.Constraint("Coincident", 19, 2, 16, 1))
sketch11.addConstraint(Sketcher.Constraint("Vertical", 0))
sketch11.addConstraint(Sketcher.Constraint("Horizontal", 1))
sketch11.addConstraint(Sketcher.Constraint("Vertical", 2))
sketch11.addConstraint(Sketcher.Constraint("Horizontal", 3))
sketch11.addConstraint(Sketcher.Constraint("Horizontal", 4))
sketch11.addConstraint(Sketcher.Constraint("Vertical", 5))
sketch11.addConstraint(Sketcher.Constraint("Horizontal", 6))
sketch11.addConstraint(Sketcher.Constraint("Vertical", 7))
sketch11.addConstraint(Sketcher.Constraint("Horizontal", 8))
sketch11.addConstraint(Sketcher.Constraint("Vertical", 9))
sketch11.addConstraint(Sketcher.Constraint("Horizontal", 10))
sketch11.addConstraint(Sketcher.Constraint("Vertical", 11))
sketch11.addConstraint(Sketcher.Constraint("Horizontal", 12))
sketch11.addConstraint(Sketcher.Constraint("Vertical", 13))
sketch11.addConstraint(Sketcher.Constraint("Horizontal", 14))
sketch11.addConstraint(Sketcher.Constraint("Vertical", 15))
sketch11.addConstraint(Sketcher.Constraint("Horizontal", 16))
sketch11.addConstraint(Sketcher.Constraint("Vertical", 17))
sketch11.addConstraint(Sketcher.Constraint("Horizontal", 18))
sketch11.addConstraint(Sketcher.Constraint("Vertical", 19))
sketch11.addConstraint(Sketcher.Constraint("Horizontal", 7, 2, 8, 2))
sketch11.addConstraint(Sketcher.Constraint("Horizontal", 6, 2, 9, 2))
sketch11.addConstraint(Sketcher.Constraint("Horizontal", 11, 2, 12, 2))
sketch11.addConstraint(Sketcher.Constraint("Horizontal", 10, 2, 13, 2))
sketch11.addConstraint(Sketcher.Constraint("Horizontal", 15, 2, 16, 2))
sketch11.addConstraint(Sketcher.Constraint("Horizontal", 14, 2, 17, 2))
sketch11.addConstraint(Sketcher.Constraint("Equal", 6, 8))
sketch11.addConstraint(Sketcher.Constraint("Equal", 10, 12))
sketch11.addConstraint(Sketcher.Constraint("Equal", 14, 16))
sketch11.addConstraint(Sketcher.Constraint("DistanceX", 1, 1, 1, 2, Q("110 mm")))
sketch11.addConstraint(Sketcher.Constraint("DistanceY", 0, 1, 0, 2, Q("10 mm")))
sketch11.addConstraint(Sketcher.Constraint("DistanceX", 4, 2, 4, 1, Q("4.7 mm")))
sketch11.addConstraint(Sketcher.Constraint("DistanceY", 5, 2, 5, 1, Q("6.7 mm")))
sketch11.addConstraint(Sketcher.Constraint("DistanceX", 4, 2, 8, 2, Q("25 mm")))
sketch11.addConstraint(Sketcher.Constraint("DistanceX", 12, 2, 16, 2, Q("25 mm")))
sketch11.addConstraint(Sketcher.Constraint("DistanceX", 11, 2, 12, 2, Q("7.1 mm")))
sketch11.addConstraint(Sketcher.Constraint("DistanceX", 0, 2, 4, 2, Q("21.75 mm")))
sketch11.addConstraint(Sketcher.Constraint("DistanceY", 4, 2, 0, 2, Q("1.65 mm")))
sketch11.addConstraint(Sketcher.Constraint("DistanceX", 0, 2, -1, 1, Q("87.86298 mm")))
sketch11.addConstraint(Sketcher.Constraint("DistanceY", 0, 2, -1, 1, Q("4.613188 mm")))
pad2 = doc.addObject("PartDesign::Pad", "Pad001")
body.addObject(pad2)
pad2.Profile = sketch11
pad2.Length = 3
pad2.Reversed = True

# Sketch on XZ plane
sketch12 = doc.addObject("Sketcher::SketchObject", "Sketch011")
body.addObject(sketch12)
sketch12.AttachmentSupport = (doc.XZ_Plane, [""])
sketch12.MapMode = "FlatFace"
sketch12.AttachmentOffset = App.Placement(V(0, 0, -13), App.Rotation())
sketch12.addGeometry(Part.LineSegment(V(-66, -13, 0), V(-66, -6, 0)), False)
sketch12.addGeometry(Part.LineSegment(V(-66, -6, 0), V(-61, -6, 0)), False)
sketch12.addGeometry(Part.LineSegment(V(-61, -6, 0), V(-61, -13, 0)), False)
sketch12.addGeometry(Part.LineSegment(V(-61, -13, 0), V(-66, -13, 0)), False)
sketch12.addGeometry(Part.LineSegment(V(-41, -13, 0), V(-41, -6, 0)), False)
sketch12.addGeometry(Part.LineSegment(V(-41, -6, 0), V(-36, -6, 0)), False)
sketch12.addGeometry(Part.LineSegment(V(-36, -6, 0), V(-36, -13, 0)), False)
sketch12.addGeometry(Part.LineSegment(V(-36, -13, 0), V(-41, -13, 0)), False)
sketch12.addGeometry(Part.LineSegment(V(-30, -13, 0), V(-30, -6, 0)), False)
sketch12.addGeometry(Part.LineSegment(V(-30, -6, 0), V(-24, -6, 0)), False)
sketch12.addGeometry(Part.LineSegment(V(-24, -6, 0), V(-24, -13, 0)), False)
sketch12.addGeometry(Part.LineSegment(V(-24, -13, 0), V(-30, -13, 0)), False)
sketch12.addGeometry(Part.LineSegment(V(-5, -13, 0), V(-5, -6, 0)), False)
sketch12.addGeometry(Part.LineSegment(V(-5, -6, 0), V(1, -6, 0)), False)
sketch12.addGeometry(Part.LineSegment(V(1, -6, 0), V(1, -13, 0)), False)
sketch12.addGeometry(Part.LineSegment(V(1, -13, 0), V(-5, -13, 0)), False)
sketch12.addConstraint(Sketcher.Constraint("Coincident", 0, 2, 1, 1))
sketch12.addConstraint(Sketcher.Constraint("Coincident", 1, 2, 2, 1))
sketch12.addConstraint(Sketcher.Constraint("Coincident", 2, 2, 3, 1))
sketch12.addConstraint(Sketcher.Constraint("Coincident", 3, 2, 0, 1))
sketch12.addConstraint(Sketcher.Constraint("Coincident", 4, 2, 5, 1))
sketch12.addConstraint(Sketcher.Constraint("Coincident", 5, 2, 6, 1))
sketch12.addConstraint(Sketcher.Constraint("Coincident", 6, 2, 7, 1))
sketch12.addConstraint(Sketcher.Constraint("Coincident", 7, 2, 4, 1))
sketch12.addConstraint(Sketcher.Constraint("Coincident", 8, 2, 9, 1))
sketch12.addConstraint(Sketcher.Constraint("Coincident", 9, 2, 10, 1))
sketch12.addConstraint(Sketcher.Constraint("Coincident", 10, 2, 11, 1))
sketch12.addConstraint(Sketcher.Constraint("Coincident", 11, 2, 8, 1))
sketch12.addConstraint(Sketcher.Constraint("Coincident", 12, 2, 13, 1))
sketch12.addConstraint(Sketcher.Constraint("Coincident", 13, 2, 14, 1))
sketch12.addConstraint(Sketcher.Constraint("Coincident", 14, 2, 15, 1))
sketch12.addConstraint(Sketcher.Constraint("Coincident", 15, 2, 12, 1))
sketch12.addConstraint(Sketcher.Constraint("Vertical", 0))
sketch12.addConstraint(Sketcher.Constraint("Horizontal", 1))
sketch12.addConstraint(Sketcher.Constraint("Vertical", 2))
sketch12.addConstraint(Sketcher.Constraint("Horizontal", 3))
sketch12.addConstraint(Sketcher.Constraint("Vertical", 4))
sketch12.addConstraint(Sketcher.Constraint("Horizontal", 5))
sketch12.addConstraint(Sketcher.Constraint("Vertical", 6))
sketch12.addConstraint(Sketcher.Constraint("Horizontal", 7))
sketch12.addConstraint(Sketcher.Constraint("Vertical", 8))
sketch12.addConstraint(Sketcher.Constraint("Horizontal", 9))
sketch12.addConstraint(Sketcher.Constraint("Vertical", 10))
sketch12.addConstraint(Sketcher.Constraint("Horizontal", 11))
sketch12.addConstraint(Sketcher.Constraint("Vertical", 12))
sketch12.addConstraint(Sketcher.Constraint("Horizontal", 13))
sketch12.addConstraint(Sketcher.Constraint("Vertical", 14))
sketch12.addConstraint(Sketcher.Constraint("Horizontal", 15))
sketch12.addConstraint(Sketcher.Constraint("Horizontal", 1, 2, 4, 2))
sketch12.addConstraint(Sketcher.Constraint("Horizontal", 3, 2, 6, 2))
sketch12.addConstraint(Sketcher.Constraint("Horizontal", 5, 2, 8, 2))
sketch12.addConstraint(Sketcher.Constraint("Horizontal", 7, 2, 10, 2))
sketch12.addConstraint(Sketcher.Constraint("Horizontal", 9, 2, 12, 2))
sketch12.addConstraint(Sketcher.Constraint("Horizontal", 11, 2, 14, 2))
sketch12.addConstraint(Sketcher.Constraint("Equal", 3, 5))
sketch12.addConstraint(Sketcher.Constraint("Equal", 7, 9))
sketch12.addConstraint(Sketcher.Constraint("Equal", 11, 13))
sketch12.addConstraint(Sketcher.Constraint("DistanceX", 1, 1, 1, 2, Q("5.1 mm")))
sketch12.addConstraint(Sketcher.Constraint("DistanceY", 0, 1, 0, 2, Q("7.1 mm")))
sketch12.addConstraint(Sketcher.Constraint("DistanceX", 0, 2, 4, 2, Q("25 mm")))
sketch12.addConstraint(Sketcher.Constraint("DistanceX", 8, 2, 12, 2, Q("25 mm")))
sketch12.addConstraint(Sketcher.Constraint("DistanceX", 5, 2, 8, 2, Q("6.7 mm")))
sketch12.addConstraint(Sketcher.Constraint("DistanceX", 0, 2, -1, 1, Q("66.31298 mm")))
sketch12.addConstraint(Sketcher.Constraint("DistanceY", 0, 2, -1, 1, Q("6.063188 mm")))
pocket2 = doc.addObject("PartDesign::Pocket", "Pocket001")
body.addObject(pocket2)
pocket2.Profile = sketch12
pocket2.Length = 5.5
pocket2.Reversed = True

# Sketch on XZ plane
sketch13 = doc.addObject("Sketcher::SketchObject", "Sketch012")
body.addObject(sketch13)
sketch13.AttachmentSupport = (doc.XZ_Plane, [""])
sketch13.MapMode = "FlatFace"
sketch13.AttachmentOffset = App.Placement(V(0, 0, -13), App.Rotation())
sketch13.addGeometry(Part.Circle(V(14.6, -9.6, 0), V(0, 0, 1), 2), False)
sketch13.addGeometry(Part.Circle(V(-80.4, -9.6, 0), V(0, 0, 1), 2), False)
sketch13.addConstraint(Sketcher.Constraint("Equal", 0, 1))
sketch13.addConstraint(Sketcher.Constraint("Horizontal", 0, 3, 1, 3))
sketch13.addConstraint(Sketcher.Constraint("Diameter", 0, Q("4 mm")))
sketch13.addConstraint(Sketcher.Constraint("DistanceX", 1, 3, 0, 3, Q("95 mm")))
sketch13.addConstraint(Sketcher.Constraint("DistanceX", -1, 1, 0, 3, Q("14.63702 mm")))
sketch13.addConstraint(Sketcher.Constraint("DistanceY", 0, 3, -1, 1, Q("9.613188 mm")))
pocket3 = doc.addObject("PartDesign::Pocket", "Pocket002")
body.addObject(pocket3)
pocket3.Profile = sketch13
pocket3.Length = 10
pocket3.Reversed = True

doc.recompute()
